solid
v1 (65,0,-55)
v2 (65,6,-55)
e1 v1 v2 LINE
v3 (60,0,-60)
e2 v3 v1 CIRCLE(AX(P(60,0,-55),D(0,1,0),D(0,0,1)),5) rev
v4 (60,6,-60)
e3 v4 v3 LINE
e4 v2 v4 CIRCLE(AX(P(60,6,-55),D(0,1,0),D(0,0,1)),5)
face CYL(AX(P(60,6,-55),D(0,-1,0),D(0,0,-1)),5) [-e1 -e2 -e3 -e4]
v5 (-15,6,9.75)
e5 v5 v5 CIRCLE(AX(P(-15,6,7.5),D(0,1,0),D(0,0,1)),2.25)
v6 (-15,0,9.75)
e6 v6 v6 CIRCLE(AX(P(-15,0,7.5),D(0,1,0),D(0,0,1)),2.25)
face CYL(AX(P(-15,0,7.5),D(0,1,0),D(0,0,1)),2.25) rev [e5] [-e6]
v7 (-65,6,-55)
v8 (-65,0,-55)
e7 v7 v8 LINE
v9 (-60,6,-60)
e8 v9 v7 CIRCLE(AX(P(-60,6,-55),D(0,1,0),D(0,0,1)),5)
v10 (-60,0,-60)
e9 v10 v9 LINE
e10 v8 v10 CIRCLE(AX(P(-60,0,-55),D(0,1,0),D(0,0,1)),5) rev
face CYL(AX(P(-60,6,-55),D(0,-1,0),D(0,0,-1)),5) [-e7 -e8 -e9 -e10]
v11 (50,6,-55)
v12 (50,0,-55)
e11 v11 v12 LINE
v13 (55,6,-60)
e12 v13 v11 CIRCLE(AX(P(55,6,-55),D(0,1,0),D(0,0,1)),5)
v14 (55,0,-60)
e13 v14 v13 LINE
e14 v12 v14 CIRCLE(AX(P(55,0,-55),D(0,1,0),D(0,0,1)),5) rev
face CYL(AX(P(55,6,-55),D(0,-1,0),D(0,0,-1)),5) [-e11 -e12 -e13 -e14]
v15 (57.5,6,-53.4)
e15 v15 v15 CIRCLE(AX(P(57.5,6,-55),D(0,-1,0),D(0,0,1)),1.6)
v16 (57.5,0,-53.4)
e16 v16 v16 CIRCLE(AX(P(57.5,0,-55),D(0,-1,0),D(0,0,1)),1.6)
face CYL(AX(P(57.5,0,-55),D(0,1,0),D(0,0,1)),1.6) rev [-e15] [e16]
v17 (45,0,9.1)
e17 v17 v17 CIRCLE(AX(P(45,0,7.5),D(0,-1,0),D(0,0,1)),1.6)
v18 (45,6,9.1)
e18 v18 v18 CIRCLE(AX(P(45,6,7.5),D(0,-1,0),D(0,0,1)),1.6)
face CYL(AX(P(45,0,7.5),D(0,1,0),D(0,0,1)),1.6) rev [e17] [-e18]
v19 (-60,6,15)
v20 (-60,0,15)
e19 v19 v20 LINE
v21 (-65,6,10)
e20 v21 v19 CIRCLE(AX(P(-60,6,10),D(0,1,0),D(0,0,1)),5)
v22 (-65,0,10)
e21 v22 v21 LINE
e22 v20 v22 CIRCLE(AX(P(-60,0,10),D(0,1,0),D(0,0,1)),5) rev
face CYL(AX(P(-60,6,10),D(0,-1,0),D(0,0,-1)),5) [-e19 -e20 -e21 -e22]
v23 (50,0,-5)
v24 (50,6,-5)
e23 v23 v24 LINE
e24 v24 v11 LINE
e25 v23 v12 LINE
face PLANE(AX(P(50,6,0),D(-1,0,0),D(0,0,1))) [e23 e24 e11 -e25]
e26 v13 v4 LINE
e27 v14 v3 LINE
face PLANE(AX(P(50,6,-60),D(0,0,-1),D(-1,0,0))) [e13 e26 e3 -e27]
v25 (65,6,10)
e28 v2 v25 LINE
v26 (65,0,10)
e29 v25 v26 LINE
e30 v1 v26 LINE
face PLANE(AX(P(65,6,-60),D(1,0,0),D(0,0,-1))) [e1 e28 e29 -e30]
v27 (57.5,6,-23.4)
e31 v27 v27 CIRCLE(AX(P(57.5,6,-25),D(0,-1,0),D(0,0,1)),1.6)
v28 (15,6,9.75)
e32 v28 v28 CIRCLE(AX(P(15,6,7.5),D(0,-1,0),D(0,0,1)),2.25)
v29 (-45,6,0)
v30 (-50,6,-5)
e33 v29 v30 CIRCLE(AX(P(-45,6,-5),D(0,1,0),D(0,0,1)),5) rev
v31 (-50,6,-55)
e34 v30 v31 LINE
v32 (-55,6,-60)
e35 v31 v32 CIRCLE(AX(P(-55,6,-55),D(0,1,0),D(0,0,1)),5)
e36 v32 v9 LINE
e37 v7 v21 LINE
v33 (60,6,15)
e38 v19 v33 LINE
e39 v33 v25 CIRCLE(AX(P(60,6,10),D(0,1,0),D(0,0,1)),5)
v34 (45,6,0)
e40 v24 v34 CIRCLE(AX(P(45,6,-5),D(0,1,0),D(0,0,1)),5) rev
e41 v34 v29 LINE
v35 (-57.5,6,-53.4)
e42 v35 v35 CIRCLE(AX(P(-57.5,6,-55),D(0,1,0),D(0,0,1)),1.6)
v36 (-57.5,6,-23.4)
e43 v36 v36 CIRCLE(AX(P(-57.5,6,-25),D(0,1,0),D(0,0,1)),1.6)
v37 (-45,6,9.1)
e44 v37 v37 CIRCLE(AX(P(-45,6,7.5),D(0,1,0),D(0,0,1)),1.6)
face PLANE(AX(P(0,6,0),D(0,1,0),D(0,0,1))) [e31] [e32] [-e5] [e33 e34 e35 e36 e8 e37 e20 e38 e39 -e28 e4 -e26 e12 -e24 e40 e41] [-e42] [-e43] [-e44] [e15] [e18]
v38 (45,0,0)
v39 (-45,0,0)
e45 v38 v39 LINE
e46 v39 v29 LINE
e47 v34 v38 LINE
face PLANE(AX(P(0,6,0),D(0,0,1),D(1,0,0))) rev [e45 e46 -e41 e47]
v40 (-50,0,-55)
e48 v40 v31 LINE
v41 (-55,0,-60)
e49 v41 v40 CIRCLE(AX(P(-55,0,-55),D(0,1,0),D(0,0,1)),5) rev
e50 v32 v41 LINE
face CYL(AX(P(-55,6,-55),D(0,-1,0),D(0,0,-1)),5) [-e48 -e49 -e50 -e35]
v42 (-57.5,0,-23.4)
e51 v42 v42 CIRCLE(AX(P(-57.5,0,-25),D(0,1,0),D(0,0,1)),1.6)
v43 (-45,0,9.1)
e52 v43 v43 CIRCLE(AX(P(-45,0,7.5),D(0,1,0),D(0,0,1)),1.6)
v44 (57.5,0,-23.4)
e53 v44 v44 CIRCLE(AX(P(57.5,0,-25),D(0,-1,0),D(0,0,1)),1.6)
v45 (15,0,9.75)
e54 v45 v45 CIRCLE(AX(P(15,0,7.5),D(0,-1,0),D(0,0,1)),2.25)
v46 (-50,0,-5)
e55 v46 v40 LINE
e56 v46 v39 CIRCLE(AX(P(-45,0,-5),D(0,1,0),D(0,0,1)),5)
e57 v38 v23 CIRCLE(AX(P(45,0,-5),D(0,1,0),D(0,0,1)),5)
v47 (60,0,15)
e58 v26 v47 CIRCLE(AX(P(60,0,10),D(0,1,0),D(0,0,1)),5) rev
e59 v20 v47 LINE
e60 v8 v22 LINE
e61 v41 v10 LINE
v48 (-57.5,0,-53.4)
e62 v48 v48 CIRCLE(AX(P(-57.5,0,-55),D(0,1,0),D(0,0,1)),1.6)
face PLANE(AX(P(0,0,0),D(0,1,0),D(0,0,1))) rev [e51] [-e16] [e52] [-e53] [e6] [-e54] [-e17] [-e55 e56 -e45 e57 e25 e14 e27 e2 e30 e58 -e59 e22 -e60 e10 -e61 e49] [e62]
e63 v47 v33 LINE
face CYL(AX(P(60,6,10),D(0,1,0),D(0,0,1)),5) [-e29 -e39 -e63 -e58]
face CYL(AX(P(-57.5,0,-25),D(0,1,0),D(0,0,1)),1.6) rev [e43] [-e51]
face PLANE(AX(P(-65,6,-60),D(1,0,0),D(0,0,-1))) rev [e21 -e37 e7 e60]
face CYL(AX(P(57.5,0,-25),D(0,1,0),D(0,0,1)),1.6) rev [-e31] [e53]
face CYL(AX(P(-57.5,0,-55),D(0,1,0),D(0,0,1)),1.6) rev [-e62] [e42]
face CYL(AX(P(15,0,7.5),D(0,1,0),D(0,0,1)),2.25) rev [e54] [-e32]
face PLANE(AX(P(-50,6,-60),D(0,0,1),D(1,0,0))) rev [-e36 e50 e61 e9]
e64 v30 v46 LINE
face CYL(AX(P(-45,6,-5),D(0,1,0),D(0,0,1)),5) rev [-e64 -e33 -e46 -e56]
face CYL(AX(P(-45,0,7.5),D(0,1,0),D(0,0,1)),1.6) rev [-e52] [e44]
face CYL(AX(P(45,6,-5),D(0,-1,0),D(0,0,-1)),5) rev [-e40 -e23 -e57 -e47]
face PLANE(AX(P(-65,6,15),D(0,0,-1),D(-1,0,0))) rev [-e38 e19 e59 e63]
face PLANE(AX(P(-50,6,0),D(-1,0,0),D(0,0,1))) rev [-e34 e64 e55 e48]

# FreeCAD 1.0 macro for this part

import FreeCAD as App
import Part
import Sketcher


def edges_at(feature, points):
    """Names of the edges that pass closest to the given points."""
    edges = feature.Shape.Edges
    near = lambda p: min(range(len(edges)), key=lambda i: edges[i].distToShape(Part.Vertex(*p))[0])
    return sorted({f"Edge{near(p) + 1}" for p in points})

doc = App.newDocument("Part")
body = doc.addObject("PartDesign::Body", "Body")

# Sketch on XZ plane
sketch1 = doc.addObject("Sketcher::SketchObject", "Sketch")
body.addObject(sketch1)
sketch1.AttachmentSupport = (doc.XZ_Plane, [""])
sketch1.MapMode = "FlatFace"
sketch1.addGeometry([
    Part.LineSegment(App.Vector(0, 0, 0), App.Vector(-50, 0, 0)),  # 0
    Part.LineSegment(App.Vector(-50, 0, 0), App.Vector(-50, -60, 0)),  # 1
    Part.LineSegment(App.Vector(-50, -60, 0), App.Vector(-65, -60, 0)),  # 2
    Part.LineSegment(App.Vector(-65, -60, 0), App.Vector(-65, 15, 0)),  # 3
    Part.LineSegment(App.Vector(-65, 15, 0), App.Vector(0, 15, 0)),  # 4
    Part.LineSegment(App.Vector(0, 15, 0), App.Vector(0, 0, 0)),  # 5
], False)
sketch1.addConstraint([
    Sketcher.Constraint("Coincident", 0, 2, 1, 1),
    Sketcher.Constraint("Coincident", 1, 2, 2, 1),
    Sketcher.Constraint("Coincident", 2, 2, 3, 1),
    Sketcher.Constraint("Coincident", 3, 2, 4, 1),
    Sketcher.Constraint("Coincident", 4, 2, 5, 1),
    Sketcher.Constraint("Coincident", 5, 2, 0, 1),
    Sketcher.Constraint("Horizontal", 0),
    Sketcher.Constraint("Vertical", 1),
    Sketcher.Constraint("Horizontal", 2),
    Sketcher.Constraint("Vertical", 3),
    Sketcher.Constraint("Horizontal", 4),
    Sketcher.Constraint("Vertical", 5),
    Sketcher.Constraint("Coincident", 5, 2, -1, 1),
    Sketcher.Constraint("Equal", 2, 5),
    Sketcher.Constraint("DistanceX", 0, 2, 0, 1, 50.0),
    Sketcher.Constraint("DistanceX", 2, 2, 2, 1, 15.0),
    Sketcher.Constraint("DistanceY", 1, 2, 1, 1, 60.0),
])
pad1 = doc.addObject("PartDesign::Pad", "Pad")
body.addObject(pad1)
pad1.Profile = sketch1
pad1.Length = 6
pad1.Reversed = True
doc.recompute()

fillet = doc.addObject("PartDesign::Fillet", "Fillet")
body.addObject(fillet)
fillet.Base = (pad1, edges_at(pad1, [
    (-65, 3, 15),
    (-65, 3, -60),
    (-50, 3, -60),
    (-50, 3, 0),
]))
fillet.Radius = 5

# Sketch on XZ plane
sketch2 = doc.addObject("Sketcher::SketchObject", "Sketch001")
body.addObject(sketch2)
sketch2.AttachmentSupport = (doc.XZ_Plane, [""])
sketch2.MapMode = "FlatFace"
sketch2.AttachmentOffset = App.Placement(App.Vector(0, 0, -6), App.Rotation())
sketch2.addGeometry([
    Part.Circle(App.Vector(-15, 7.5, 0), App.Vector(0, 0, 1), 2.2),
    Part.Circle(App.Vector(-45, 7.5, 0), App.Vector(0, 0, 1), 1.6),
    Part.Circle(App.Vector(-57.5, -55, 0), App.Vector(0, 0, 1), 1.6),
    Part.Circle(App.Vector(-57.5, -25, 0), App.Vector(0, 0, 1), 1.6),
], False)
sketch2.addConstraint([
    Sketcher.Constraint("Equal", 1, 2),
    Sketcher.Constraint("Equal", 2, 3),
    Sketcher.Constraint("Horizontal", 0, 3, 1, 3),
    Sketcher.Constraint("Vertical", 2, 3, 3, 3),
    Sketcher.Constraint("Diameter", 0, 4.5),
    Sketcher.Constraint("Diameter", 1, 3.2),
    Sketcher.Constraint("DistanceX", 0, 3, -1, 1, 15.0),
    Sketcher.Constraint("DistanceX", 1, 3, -1, 1, 45.0),
    Sketcher.Constraint("DistanceY", 2, 3, -1, 1, 55.0),
    Sketcher.Constraint("DistanceY", 3, 3, -1, 1, 25.0),
    Sketcher.Constraint("DistanceY", -1, 1, 0, 3, 7.5),
    Sketcher.Constraint("DistanceX", 2, 3, -1, 1, 57.5),
])
pocket1 = doc.addObject("PartDesign::Pocket", "Pocket")
body.addObject(pocket1)
pocket1.Profile = sketch2
pocket1.Type = "ThroughAll"
pocket1.Reversed = True
doc.recompute()

mirrored = doc.addObject("PartDesign::Mirrored", "Mirrored")
body.addObject(mirrored)
mirrored.Originals = [pad1, pocket1]
mirrored.MirrorPlane = (doc.YZ_Plane, [""])
body.Tip = mirrored
doc.recompute()

fillet2 = doc.addObject("PartDesign::Fillet", "Fillet001")
body.addObject(fillet2)
fillet2.Base = (mirrored, edges_at(mirrored, [
    (65, 3, 15),
    (65, 3, -60),
    (50, 3, -60),
    (50, 3, 0),
]))
fillet2.Radius = 5

doc.recompute()
